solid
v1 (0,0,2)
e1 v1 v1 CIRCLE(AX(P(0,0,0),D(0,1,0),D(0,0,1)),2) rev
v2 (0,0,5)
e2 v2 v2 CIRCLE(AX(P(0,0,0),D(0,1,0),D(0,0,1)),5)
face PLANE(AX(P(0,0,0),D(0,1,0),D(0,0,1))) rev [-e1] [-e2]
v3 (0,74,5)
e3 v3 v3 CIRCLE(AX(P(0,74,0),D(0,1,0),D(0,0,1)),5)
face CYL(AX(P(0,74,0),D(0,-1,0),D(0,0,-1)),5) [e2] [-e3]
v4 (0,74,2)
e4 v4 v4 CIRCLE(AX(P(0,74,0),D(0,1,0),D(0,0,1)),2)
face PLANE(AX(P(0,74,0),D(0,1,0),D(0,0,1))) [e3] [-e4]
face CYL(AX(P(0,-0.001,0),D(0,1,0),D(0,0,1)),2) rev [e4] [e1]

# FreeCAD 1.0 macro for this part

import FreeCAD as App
import Part
import Sketcher

doc = App.newDocument("Part")
body = doc.addObject("PartDesign::Body", "Body")

# Sketch on XZ plane
sketch1 = body.newObject("Sketcher::SketchObject", "Sketch")
sketch1.AttachmentSupport = (doc.getObject("XZ_Plane"), [""])
sketch1.MapMode = "FlatFace"
sketch1.addGeometry(Part.Circle(App.Vector(0, 0, 0), App.Vector(0, 0, 1), 5), False)
sketch1.addConstraint([
    Sketcher.Constraint("Coincident", 0, 3, -1, 1),
    Sketcher.Constraint("Diameter", 0, 10.0),
])
pad1 = body.newObject("PartDesign::Pad", "Pad")
pad1.Profile = sketch1
pad1.Length = 74
pad1.Reversed = True

# Sketch on XZ plane
sketch2 = body.newObject("Sketcher::SketchObject", "Sketch001")
sketch2.AttachmentSupport = (doc.getObject("XZ_Plane"), [""])
sketch2.MapMode = "FlatFace"
sketch2.AttachmentOffset = App.Placement(App.Vector(0, 0, -74), App.Rotation())
sketch2.addGeometry(Part.Circle(App.Vector(0, 0, 0), App.Vector(0, 0, 1), 2), False)
sketch2.addConstraint([
    Sketcher.Constraint("Coincident", 0, 3, -1, 1),
    Sketcher.Constraint("Diameter", 0, 4.0),
])
pocket1 = body.newObject("PartDesign::Pocket", "Pocket")
pocket1.Profile = sketch2
pocket1.Type = "UpToFirst"
pocket1.Reversed = True

doc.recompute()
